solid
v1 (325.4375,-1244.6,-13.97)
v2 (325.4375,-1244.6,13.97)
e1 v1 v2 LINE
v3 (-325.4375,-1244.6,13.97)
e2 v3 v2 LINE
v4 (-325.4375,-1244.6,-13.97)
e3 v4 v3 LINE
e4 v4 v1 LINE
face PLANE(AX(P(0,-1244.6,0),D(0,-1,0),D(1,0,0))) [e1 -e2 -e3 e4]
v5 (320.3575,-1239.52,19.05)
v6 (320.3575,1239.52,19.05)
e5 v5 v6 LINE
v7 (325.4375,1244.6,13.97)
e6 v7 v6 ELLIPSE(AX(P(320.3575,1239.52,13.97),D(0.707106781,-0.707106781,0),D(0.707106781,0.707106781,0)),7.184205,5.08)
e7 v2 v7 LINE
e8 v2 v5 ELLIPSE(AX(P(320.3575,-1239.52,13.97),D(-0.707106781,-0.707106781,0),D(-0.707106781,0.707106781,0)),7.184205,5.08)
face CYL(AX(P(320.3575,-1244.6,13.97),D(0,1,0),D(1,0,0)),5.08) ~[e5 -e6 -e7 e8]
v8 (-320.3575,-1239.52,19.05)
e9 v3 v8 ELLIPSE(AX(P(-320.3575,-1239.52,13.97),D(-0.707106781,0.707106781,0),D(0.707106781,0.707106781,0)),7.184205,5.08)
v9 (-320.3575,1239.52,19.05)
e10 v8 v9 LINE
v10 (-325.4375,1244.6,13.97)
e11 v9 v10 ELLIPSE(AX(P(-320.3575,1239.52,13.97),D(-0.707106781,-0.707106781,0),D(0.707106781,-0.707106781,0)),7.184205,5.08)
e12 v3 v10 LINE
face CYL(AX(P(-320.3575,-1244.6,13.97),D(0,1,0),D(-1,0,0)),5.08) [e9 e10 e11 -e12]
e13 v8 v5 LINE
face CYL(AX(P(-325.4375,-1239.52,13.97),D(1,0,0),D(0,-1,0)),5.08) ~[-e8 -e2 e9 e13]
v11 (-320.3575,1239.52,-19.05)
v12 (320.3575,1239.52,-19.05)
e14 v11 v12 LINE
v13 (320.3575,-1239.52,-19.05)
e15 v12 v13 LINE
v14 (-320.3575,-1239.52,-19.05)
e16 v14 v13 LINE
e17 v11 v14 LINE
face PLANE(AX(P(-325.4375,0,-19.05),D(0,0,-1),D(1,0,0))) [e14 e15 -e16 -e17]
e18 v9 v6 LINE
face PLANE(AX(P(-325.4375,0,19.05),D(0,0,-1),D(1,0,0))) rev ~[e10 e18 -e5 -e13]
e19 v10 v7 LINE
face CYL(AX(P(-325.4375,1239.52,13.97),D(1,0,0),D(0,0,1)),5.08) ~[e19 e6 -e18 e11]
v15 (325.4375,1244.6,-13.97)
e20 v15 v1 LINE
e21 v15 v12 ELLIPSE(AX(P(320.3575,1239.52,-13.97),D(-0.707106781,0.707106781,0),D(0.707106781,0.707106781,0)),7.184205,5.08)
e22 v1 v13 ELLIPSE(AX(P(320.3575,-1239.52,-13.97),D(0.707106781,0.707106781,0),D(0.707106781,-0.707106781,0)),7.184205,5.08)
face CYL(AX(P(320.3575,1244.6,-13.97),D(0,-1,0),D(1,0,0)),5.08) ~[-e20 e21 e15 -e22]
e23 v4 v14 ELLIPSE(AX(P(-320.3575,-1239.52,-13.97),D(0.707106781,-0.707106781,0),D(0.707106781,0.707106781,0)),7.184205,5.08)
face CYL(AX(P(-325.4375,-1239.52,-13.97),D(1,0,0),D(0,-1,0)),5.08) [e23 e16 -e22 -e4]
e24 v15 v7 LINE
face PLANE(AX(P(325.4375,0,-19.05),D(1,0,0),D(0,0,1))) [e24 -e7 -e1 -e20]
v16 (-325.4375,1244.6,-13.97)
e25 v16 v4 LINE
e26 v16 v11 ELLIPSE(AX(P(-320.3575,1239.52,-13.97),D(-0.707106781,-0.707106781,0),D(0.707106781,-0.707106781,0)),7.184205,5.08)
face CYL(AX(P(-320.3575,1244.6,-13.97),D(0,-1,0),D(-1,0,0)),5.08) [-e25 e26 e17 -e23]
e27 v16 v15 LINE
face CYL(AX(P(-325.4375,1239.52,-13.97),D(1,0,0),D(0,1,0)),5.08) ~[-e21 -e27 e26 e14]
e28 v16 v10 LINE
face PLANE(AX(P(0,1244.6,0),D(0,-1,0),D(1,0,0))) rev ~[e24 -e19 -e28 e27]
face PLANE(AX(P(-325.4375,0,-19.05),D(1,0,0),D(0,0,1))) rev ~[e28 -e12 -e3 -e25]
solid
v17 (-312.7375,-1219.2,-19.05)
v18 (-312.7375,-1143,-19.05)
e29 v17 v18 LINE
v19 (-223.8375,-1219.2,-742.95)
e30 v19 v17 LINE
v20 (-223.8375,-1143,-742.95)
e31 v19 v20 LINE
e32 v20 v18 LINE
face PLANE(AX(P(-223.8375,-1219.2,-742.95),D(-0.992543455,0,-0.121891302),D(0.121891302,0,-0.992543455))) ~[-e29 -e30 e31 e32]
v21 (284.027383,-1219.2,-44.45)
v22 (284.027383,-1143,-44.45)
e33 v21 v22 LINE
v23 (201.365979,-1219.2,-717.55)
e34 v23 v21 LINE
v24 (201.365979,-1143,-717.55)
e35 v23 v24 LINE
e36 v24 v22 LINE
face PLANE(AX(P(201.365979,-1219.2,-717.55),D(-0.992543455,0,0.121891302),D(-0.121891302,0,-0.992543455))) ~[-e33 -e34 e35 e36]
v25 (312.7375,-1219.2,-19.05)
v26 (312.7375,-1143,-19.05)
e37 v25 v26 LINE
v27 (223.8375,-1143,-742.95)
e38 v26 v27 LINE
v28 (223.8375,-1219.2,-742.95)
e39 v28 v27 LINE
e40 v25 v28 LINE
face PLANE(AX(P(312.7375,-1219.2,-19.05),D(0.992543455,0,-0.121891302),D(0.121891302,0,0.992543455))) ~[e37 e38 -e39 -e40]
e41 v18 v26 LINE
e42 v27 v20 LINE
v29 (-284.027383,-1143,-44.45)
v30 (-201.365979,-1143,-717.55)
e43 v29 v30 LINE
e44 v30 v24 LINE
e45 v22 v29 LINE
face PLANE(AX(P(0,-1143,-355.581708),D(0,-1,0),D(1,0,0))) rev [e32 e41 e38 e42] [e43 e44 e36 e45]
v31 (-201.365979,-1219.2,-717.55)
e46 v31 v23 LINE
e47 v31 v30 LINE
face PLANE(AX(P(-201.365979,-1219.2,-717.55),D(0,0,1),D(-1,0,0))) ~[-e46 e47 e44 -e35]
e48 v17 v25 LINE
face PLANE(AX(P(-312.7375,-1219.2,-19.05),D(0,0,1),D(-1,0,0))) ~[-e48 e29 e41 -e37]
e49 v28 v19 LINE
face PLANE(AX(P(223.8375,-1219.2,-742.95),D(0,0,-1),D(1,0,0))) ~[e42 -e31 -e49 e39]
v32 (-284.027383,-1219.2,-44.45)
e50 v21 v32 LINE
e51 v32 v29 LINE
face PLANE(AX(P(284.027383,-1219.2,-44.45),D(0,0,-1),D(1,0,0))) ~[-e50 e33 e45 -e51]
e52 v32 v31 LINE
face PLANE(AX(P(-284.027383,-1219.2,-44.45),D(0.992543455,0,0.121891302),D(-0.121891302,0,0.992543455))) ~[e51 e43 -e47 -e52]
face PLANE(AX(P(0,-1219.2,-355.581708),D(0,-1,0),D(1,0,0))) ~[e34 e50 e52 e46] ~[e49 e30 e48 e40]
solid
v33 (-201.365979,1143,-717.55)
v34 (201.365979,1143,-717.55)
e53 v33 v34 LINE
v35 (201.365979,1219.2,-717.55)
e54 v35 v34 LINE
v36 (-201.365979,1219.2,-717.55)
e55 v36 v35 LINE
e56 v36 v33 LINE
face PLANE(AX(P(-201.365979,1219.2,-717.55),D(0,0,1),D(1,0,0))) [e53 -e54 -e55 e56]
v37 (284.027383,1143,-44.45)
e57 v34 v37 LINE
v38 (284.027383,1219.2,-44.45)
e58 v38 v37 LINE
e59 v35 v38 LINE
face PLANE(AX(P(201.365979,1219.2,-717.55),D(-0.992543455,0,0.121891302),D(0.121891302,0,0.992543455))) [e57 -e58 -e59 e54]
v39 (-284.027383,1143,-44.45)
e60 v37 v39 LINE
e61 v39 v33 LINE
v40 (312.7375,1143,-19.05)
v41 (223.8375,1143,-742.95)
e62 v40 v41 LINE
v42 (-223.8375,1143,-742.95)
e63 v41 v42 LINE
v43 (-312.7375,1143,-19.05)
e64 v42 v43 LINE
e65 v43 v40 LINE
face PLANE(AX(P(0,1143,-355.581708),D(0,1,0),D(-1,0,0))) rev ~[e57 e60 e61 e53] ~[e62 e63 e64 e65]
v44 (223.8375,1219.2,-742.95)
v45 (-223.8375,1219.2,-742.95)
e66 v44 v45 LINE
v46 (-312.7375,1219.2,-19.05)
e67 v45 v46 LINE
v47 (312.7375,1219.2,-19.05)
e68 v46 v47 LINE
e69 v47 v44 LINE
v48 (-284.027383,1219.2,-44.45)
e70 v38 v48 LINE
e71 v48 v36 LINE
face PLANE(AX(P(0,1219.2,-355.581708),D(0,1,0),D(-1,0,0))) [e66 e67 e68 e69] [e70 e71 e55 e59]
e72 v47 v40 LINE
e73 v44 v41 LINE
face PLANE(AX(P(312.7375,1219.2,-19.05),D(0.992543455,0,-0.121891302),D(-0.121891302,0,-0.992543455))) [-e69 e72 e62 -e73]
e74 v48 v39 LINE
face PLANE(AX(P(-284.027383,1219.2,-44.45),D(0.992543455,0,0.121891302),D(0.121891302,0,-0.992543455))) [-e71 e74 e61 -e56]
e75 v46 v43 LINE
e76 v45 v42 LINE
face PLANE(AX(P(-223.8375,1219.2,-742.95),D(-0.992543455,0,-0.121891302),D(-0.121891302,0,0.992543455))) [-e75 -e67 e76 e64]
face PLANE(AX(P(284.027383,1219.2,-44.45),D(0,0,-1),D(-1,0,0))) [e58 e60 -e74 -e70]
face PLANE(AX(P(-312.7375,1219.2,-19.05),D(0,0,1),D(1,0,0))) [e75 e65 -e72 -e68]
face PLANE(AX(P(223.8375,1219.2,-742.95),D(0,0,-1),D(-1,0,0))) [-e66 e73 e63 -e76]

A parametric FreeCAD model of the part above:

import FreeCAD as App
import Part
import Sketcher
Q = App.Units.Quantity


def edges_at(feature, points):
    """Names of the edges that pass closest to the given points."""
    edges = feature.Shape.Edges
    near = lambda p: min(range(len(edges)), key=lambda i: edges[i].distToShape(Part.Vertex(*p))[0])
    return sorted({f"Edge{near(p) + 1}" for p in points})


def add_polygon(sketch, points):
    """Adds a closed chain of lines whose ends are joined by coincident constraints."""
    first, n = sketch.GeometryCount, len(points)
    for a, b in zip(points, points[1:] + points[:1]):
        sketch.addGeometry(Part.LineSegment(App.Vector(*a, 0), App.Vector(*b, 0)), False)
    for i in range(n):
        sketch.addConstraint(Sketcher.Constraint("Coincident", first + i, 2, first + (i + 1) % n, 1))

doc = App.newDocument("Part")
body = doc.addObject("PartDesign::Body", "Body")

# Sketch on XZ plane
sketch1 = body.newObject("Sketcher::SketchObject", "Sketch")
sketch1.AttachmentSupport = (doc.getObject("XZ_Plane"), [""])
sketch1.MapMode = "FlatFace"
add_polygon(sketch1, [(-325, 19), (-325, -19), (325, -19), (325, 19)])  # lines 0-3
sketch1.addConstraint([
    Sketcher.Constraint("Vertical", 0),
    Sketcher.Constraint("Horizontal", 1),
    Sketcher.Constraint("Vertical", 2),
    Sketcher.Constraint("Horizontal", 3),
    Sketcher.Constraint("Symmetric", 0, 2, 2, 2, -1, 1),
    Sketcher.Constraint("DistanceY", 0, 2, 0, 1, Q("1.5 in")),
    Sketcher.Constraint("DistanceX", 1, 1, 1, 2, Q("25.625 in")),
])
pad1 = body.newObject("PartDesign::Pad", "Pad")
pad1.Profile = sketch1
pad1.Length = Q("98 in")
pad1.Midplane = True
doc.recompute()

fillet = body.newObject("PartDesign::Fillet", "Fillet")
fillet.Base = (pad1, edges_at(pad1, [
    (325.438, 0, 19.05),
    (0, 1244.6, 19.05),
    (-325.438, 0, 19.05),
    (0, -1244.6, 19.05),
    (0, 1244.6, -19.05),
    (325.438, 0, -19.05),
    (0, -1244.6, -19.05),
    (-325.438, 0, -19.05),
]))
fillet.Radius = Q("0.2 in")
body2 = doc.addObject("PartDesign::Body", "Body001")

# Sketch on XZ plane
sketch2 = body2.newObject("Sketcher::SketchObject", "Sketch001")
sketch2.AttachmentSupport = (doc.getObject("XZ_Plane001"), [""])
sketch2.MapMode = "FlatFace"
sketch2.AttachmentOffset = App.Placement(App.Vector(0, 0, -48 * 25.4), App.Rotation())
add_polygon(sketch2, [(-313, -19), (313, -19), (224, -743), (-224, -743)])  # lines 0-3
add_polygon(sketch2, [(201, -718), (284, -44), (-284, -44), (-201, -718)])  # lines 4-7
sketch2.addConstraint([
    Sketcher.Constraint("Horizontal", 0),
    Sketcher.Constraint("Horizontal", 2),
    Sketcher.Constraint("Horizontal", 5),
    Sketcher.Constraint("Horizontal", 7),
    Sketcher.Constraint("Parallel", 1, 4),
    Sketcher.Constraint("Parallel", 3, 6),
    Sketcher.Constraint("Equal", 1, 3),
    Sketcher.Constraint("DistanceY", 4, 2, 0, 2, Q("1 in")),
    Sketcher.Constraint("DistanceY", 2, 2, 6, 2, Q("1 in")),
    Sketcher.Constraint("DistanceX", 1, 2, 0, 2, Q("3.5 in")),
    Sketcher.Constraint("DistanceY", 1, 2, 0, 2, Q("28.5 in")),
    Sketcher.Constraint("DistanceX", 0, 1, 0, 2, Q("24.625 in")),
    Sketcher.Constraint("DistanceY", 0, 2, -1, 1, Q("0.75 in")),
    Sketcher.Constraint("DistanceX", -1, 1, 0, 2, Q("12.3125 in")),
    Sketcher.Constraint("DistanceX", 7, 1, 7, 2, Q("402.731958 mm")),
    Sketcher.Constraint("DistanceX", 6, 2, -1, 1, Q("201.365979 mm")),
])
pad2 = body2.newObject("PartDesign::Pad", "Pad001")
pad2.Profile = sketch2
pad2.Length = Q("3 in")
body3 = doc.addObject("PartDesign::Body", "Body002")
doc.recompute()

mirroring = doc.addObject("Part::Mirroring", "Mirroring")
mirroring.Source = body2
mirroring.Base = App.Vector(0, 0, 0)
mirroring.Normal = App.Vector(0, -1, 0)
body3.BaseFeature = mirroring
doc.recompute()
mirroring.Visibility = False

doc.recompute()
